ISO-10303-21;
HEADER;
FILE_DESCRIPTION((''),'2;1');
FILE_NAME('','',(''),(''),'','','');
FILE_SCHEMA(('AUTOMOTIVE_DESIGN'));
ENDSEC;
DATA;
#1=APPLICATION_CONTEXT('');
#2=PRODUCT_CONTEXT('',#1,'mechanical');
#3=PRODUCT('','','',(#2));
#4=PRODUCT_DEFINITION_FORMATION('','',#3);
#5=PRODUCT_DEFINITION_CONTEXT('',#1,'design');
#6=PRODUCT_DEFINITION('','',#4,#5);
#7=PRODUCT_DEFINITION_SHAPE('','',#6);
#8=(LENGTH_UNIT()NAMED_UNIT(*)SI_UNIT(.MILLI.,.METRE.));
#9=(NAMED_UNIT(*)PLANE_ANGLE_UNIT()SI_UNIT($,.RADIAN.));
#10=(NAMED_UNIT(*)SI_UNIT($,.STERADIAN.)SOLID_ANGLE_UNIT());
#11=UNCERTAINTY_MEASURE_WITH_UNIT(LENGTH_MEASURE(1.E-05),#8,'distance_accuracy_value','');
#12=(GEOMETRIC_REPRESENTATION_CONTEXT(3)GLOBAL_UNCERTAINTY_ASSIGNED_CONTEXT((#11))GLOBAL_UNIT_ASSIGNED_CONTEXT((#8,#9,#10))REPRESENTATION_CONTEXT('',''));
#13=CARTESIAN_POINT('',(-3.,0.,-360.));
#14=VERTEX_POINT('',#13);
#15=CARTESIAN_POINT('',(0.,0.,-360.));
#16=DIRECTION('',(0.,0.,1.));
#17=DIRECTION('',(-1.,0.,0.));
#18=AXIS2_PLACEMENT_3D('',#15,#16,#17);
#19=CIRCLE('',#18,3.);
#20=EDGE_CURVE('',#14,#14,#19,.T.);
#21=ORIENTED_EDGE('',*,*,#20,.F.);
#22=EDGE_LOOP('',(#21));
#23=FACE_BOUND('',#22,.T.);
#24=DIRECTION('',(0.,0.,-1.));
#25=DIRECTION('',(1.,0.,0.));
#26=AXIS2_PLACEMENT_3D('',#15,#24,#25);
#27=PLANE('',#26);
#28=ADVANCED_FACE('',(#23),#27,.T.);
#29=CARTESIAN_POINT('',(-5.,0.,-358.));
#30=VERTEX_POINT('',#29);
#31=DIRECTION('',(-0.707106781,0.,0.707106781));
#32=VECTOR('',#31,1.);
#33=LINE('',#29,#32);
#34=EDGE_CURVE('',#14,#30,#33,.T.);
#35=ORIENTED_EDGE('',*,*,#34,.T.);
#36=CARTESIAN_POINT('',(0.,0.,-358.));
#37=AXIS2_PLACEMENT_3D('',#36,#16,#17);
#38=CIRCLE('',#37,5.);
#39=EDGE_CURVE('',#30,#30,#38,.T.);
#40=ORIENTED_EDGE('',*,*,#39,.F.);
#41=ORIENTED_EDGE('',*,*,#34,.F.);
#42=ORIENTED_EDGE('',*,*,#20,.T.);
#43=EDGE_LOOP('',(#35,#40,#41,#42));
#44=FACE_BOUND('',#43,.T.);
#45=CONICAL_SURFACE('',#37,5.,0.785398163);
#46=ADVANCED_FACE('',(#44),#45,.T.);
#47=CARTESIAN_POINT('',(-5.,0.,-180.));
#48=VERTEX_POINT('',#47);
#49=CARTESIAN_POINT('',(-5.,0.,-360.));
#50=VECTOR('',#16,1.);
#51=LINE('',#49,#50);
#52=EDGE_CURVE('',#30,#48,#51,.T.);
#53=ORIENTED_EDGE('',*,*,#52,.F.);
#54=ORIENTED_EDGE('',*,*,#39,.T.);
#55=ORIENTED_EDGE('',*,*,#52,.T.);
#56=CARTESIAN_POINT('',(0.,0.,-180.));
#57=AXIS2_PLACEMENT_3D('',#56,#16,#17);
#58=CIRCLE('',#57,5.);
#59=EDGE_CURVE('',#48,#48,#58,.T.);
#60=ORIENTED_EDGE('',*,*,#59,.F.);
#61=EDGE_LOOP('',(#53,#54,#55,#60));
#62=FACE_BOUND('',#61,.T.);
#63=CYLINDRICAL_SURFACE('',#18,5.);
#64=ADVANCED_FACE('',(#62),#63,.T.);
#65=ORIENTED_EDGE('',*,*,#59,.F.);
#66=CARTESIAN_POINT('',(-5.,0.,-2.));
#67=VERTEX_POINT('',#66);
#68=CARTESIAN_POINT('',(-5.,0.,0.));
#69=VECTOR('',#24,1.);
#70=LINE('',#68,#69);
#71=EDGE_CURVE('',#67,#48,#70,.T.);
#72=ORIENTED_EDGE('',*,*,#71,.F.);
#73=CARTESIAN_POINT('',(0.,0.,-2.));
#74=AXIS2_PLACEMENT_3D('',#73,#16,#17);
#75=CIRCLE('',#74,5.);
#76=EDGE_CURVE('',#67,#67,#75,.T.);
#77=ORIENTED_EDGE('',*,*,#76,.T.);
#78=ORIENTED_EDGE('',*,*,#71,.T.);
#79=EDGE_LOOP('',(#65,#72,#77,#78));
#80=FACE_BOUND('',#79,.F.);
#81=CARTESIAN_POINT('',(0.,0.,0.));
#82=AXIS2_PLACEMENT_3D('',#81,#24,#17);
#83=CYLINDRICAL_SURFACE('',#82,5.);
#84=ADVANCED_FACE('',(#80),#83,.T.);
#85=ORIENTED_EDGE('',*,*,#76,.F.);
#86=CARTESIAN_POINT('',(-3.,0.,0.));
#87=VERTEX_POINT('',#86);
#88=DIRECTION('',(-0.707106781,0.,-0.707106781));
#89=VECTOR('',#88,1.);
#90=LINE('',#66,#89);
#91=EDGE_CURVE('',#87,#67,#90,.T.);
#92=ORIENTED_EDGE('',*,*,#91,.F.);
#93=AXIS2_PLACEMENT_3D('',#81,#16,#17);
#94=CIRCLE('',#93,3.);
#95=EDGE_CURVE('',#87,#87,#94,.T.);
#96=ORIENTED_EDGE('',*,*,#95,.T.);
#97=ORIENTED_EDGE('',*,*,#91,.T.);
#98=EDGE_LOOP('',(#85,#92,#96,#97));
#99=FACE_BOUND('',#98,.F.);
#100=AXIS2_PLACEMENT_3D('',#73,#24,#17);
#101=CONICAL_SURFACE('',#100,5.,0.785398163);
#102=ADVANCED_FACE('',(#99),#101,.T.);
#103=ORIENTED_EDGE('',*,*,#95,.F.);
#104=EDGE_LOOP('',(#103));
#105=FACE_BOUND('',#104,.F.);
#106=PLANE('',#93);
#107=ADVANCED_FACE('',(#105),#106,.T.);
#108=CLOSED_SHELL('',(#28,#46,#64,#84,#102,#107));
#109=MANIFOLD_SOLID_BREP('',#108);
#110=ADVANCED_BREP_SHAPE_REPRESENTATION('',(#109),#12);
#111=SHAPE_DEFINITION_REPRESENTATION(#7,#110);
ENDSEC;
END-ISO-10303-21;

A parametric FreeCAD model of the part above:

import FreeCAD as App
import Part
import Sketcher

V = App.Vector
Q = App.Units.Quantity


def edges_at(feature, points):
    """Names of the edges that pass closest to the given points."""
    edges = feature.Shape.Edges
    near = lambda p: min(range(len(edges)), key=lambda i: edges[i].distToShape(Part.Vertex(*p))[0])
    return sorted({f"Edge{near(p) + 1}" for p in points})


def add_polygon(sketch, points):
    """Adds a closed chain of lines whose ends are joined by coincident constraints."""
    first, n = sketch.GeometryCount, len(points)
    for a, b in zip(points, points[1:] + points[:1]):
        sketch.addGeometry(Part.LineSegment(App.Vector(*a, 0), App.Vector(*b, 0)), False)
    for i in range(n):
        sketch.addConstraint(Sketcher.Constraint("Coincident", first + i, 2, first + (i + 1) % n, 1))

doc = App.newDocument("Part")
body = doc.addObject("PartDesign::Body", "Body")

sketch1 = doc.addObject("Sketcher::SketchObject", "Sketch")
body.addObject(sketch1)
sketch1.AttachmentSupport = (doc.XZ_Plane, [""])
sketch1.MapMode = "FlatFace"
add_polygon(sketch1, [(-5, 0), (0, 0), (0, -180), (-5, -180)])
sketch1.addConstraint([
    Sketcher.Constraint("Horizontal", 0),
    Sketcher.Constraint("Vertical", 1),
    Sketcher.Constraint("Horizontal", 2),
    Sketcher.Constraint("Vertical", 3),
    Sketcher.Constraint("Coincident", 0, 2, -1, 1),
    Sketcher.Constraint("DistanceY", 1, 2, 1, 1, Q("180 mm")),
    Sketcher.Constraint("DistanceX", 0, 1, 0, 2, Q("5 mm")),
])
revolution = doc.addObject("PartDesign::Revolution", "Revolution")
body.addObject(revolution)
revolution.Profile = sketch1
revolution.ReferenceAxis = (sketch1, ["V_Axis"])
revolution.Angle = 360
doc.recompute()

chamfer = doc.addObject("PartDesign::Chamfer", "Chamfer")
body.addObject(chamfer)
chamfer.Base = (revolution, edges_at(revolution, [(5, 0, 0)]))
chamfer.Size = 2
doc.recompute()

datumplane = doc.addObject("PartDesign::Plane", "DatumPlane")
body.addObject(datumplane)
datumplane.AttachmentSupport = (doc.XY_Plane, [""])
datumplane.MapMode = "FlatFace"
datumplane.AttachmentOffset = App.Placement(V(0, 0, -180), App.Rotation())
mirrored = doc.addObject("PartDesign::Mirrored", "Mirrored")
body.addObject(mirrored)
mirrored.TransformMode = "Transform body"
mirrored.MirrorPlane = (datumplane, [""])
body.Tip = mirrored

doc.recompute()
